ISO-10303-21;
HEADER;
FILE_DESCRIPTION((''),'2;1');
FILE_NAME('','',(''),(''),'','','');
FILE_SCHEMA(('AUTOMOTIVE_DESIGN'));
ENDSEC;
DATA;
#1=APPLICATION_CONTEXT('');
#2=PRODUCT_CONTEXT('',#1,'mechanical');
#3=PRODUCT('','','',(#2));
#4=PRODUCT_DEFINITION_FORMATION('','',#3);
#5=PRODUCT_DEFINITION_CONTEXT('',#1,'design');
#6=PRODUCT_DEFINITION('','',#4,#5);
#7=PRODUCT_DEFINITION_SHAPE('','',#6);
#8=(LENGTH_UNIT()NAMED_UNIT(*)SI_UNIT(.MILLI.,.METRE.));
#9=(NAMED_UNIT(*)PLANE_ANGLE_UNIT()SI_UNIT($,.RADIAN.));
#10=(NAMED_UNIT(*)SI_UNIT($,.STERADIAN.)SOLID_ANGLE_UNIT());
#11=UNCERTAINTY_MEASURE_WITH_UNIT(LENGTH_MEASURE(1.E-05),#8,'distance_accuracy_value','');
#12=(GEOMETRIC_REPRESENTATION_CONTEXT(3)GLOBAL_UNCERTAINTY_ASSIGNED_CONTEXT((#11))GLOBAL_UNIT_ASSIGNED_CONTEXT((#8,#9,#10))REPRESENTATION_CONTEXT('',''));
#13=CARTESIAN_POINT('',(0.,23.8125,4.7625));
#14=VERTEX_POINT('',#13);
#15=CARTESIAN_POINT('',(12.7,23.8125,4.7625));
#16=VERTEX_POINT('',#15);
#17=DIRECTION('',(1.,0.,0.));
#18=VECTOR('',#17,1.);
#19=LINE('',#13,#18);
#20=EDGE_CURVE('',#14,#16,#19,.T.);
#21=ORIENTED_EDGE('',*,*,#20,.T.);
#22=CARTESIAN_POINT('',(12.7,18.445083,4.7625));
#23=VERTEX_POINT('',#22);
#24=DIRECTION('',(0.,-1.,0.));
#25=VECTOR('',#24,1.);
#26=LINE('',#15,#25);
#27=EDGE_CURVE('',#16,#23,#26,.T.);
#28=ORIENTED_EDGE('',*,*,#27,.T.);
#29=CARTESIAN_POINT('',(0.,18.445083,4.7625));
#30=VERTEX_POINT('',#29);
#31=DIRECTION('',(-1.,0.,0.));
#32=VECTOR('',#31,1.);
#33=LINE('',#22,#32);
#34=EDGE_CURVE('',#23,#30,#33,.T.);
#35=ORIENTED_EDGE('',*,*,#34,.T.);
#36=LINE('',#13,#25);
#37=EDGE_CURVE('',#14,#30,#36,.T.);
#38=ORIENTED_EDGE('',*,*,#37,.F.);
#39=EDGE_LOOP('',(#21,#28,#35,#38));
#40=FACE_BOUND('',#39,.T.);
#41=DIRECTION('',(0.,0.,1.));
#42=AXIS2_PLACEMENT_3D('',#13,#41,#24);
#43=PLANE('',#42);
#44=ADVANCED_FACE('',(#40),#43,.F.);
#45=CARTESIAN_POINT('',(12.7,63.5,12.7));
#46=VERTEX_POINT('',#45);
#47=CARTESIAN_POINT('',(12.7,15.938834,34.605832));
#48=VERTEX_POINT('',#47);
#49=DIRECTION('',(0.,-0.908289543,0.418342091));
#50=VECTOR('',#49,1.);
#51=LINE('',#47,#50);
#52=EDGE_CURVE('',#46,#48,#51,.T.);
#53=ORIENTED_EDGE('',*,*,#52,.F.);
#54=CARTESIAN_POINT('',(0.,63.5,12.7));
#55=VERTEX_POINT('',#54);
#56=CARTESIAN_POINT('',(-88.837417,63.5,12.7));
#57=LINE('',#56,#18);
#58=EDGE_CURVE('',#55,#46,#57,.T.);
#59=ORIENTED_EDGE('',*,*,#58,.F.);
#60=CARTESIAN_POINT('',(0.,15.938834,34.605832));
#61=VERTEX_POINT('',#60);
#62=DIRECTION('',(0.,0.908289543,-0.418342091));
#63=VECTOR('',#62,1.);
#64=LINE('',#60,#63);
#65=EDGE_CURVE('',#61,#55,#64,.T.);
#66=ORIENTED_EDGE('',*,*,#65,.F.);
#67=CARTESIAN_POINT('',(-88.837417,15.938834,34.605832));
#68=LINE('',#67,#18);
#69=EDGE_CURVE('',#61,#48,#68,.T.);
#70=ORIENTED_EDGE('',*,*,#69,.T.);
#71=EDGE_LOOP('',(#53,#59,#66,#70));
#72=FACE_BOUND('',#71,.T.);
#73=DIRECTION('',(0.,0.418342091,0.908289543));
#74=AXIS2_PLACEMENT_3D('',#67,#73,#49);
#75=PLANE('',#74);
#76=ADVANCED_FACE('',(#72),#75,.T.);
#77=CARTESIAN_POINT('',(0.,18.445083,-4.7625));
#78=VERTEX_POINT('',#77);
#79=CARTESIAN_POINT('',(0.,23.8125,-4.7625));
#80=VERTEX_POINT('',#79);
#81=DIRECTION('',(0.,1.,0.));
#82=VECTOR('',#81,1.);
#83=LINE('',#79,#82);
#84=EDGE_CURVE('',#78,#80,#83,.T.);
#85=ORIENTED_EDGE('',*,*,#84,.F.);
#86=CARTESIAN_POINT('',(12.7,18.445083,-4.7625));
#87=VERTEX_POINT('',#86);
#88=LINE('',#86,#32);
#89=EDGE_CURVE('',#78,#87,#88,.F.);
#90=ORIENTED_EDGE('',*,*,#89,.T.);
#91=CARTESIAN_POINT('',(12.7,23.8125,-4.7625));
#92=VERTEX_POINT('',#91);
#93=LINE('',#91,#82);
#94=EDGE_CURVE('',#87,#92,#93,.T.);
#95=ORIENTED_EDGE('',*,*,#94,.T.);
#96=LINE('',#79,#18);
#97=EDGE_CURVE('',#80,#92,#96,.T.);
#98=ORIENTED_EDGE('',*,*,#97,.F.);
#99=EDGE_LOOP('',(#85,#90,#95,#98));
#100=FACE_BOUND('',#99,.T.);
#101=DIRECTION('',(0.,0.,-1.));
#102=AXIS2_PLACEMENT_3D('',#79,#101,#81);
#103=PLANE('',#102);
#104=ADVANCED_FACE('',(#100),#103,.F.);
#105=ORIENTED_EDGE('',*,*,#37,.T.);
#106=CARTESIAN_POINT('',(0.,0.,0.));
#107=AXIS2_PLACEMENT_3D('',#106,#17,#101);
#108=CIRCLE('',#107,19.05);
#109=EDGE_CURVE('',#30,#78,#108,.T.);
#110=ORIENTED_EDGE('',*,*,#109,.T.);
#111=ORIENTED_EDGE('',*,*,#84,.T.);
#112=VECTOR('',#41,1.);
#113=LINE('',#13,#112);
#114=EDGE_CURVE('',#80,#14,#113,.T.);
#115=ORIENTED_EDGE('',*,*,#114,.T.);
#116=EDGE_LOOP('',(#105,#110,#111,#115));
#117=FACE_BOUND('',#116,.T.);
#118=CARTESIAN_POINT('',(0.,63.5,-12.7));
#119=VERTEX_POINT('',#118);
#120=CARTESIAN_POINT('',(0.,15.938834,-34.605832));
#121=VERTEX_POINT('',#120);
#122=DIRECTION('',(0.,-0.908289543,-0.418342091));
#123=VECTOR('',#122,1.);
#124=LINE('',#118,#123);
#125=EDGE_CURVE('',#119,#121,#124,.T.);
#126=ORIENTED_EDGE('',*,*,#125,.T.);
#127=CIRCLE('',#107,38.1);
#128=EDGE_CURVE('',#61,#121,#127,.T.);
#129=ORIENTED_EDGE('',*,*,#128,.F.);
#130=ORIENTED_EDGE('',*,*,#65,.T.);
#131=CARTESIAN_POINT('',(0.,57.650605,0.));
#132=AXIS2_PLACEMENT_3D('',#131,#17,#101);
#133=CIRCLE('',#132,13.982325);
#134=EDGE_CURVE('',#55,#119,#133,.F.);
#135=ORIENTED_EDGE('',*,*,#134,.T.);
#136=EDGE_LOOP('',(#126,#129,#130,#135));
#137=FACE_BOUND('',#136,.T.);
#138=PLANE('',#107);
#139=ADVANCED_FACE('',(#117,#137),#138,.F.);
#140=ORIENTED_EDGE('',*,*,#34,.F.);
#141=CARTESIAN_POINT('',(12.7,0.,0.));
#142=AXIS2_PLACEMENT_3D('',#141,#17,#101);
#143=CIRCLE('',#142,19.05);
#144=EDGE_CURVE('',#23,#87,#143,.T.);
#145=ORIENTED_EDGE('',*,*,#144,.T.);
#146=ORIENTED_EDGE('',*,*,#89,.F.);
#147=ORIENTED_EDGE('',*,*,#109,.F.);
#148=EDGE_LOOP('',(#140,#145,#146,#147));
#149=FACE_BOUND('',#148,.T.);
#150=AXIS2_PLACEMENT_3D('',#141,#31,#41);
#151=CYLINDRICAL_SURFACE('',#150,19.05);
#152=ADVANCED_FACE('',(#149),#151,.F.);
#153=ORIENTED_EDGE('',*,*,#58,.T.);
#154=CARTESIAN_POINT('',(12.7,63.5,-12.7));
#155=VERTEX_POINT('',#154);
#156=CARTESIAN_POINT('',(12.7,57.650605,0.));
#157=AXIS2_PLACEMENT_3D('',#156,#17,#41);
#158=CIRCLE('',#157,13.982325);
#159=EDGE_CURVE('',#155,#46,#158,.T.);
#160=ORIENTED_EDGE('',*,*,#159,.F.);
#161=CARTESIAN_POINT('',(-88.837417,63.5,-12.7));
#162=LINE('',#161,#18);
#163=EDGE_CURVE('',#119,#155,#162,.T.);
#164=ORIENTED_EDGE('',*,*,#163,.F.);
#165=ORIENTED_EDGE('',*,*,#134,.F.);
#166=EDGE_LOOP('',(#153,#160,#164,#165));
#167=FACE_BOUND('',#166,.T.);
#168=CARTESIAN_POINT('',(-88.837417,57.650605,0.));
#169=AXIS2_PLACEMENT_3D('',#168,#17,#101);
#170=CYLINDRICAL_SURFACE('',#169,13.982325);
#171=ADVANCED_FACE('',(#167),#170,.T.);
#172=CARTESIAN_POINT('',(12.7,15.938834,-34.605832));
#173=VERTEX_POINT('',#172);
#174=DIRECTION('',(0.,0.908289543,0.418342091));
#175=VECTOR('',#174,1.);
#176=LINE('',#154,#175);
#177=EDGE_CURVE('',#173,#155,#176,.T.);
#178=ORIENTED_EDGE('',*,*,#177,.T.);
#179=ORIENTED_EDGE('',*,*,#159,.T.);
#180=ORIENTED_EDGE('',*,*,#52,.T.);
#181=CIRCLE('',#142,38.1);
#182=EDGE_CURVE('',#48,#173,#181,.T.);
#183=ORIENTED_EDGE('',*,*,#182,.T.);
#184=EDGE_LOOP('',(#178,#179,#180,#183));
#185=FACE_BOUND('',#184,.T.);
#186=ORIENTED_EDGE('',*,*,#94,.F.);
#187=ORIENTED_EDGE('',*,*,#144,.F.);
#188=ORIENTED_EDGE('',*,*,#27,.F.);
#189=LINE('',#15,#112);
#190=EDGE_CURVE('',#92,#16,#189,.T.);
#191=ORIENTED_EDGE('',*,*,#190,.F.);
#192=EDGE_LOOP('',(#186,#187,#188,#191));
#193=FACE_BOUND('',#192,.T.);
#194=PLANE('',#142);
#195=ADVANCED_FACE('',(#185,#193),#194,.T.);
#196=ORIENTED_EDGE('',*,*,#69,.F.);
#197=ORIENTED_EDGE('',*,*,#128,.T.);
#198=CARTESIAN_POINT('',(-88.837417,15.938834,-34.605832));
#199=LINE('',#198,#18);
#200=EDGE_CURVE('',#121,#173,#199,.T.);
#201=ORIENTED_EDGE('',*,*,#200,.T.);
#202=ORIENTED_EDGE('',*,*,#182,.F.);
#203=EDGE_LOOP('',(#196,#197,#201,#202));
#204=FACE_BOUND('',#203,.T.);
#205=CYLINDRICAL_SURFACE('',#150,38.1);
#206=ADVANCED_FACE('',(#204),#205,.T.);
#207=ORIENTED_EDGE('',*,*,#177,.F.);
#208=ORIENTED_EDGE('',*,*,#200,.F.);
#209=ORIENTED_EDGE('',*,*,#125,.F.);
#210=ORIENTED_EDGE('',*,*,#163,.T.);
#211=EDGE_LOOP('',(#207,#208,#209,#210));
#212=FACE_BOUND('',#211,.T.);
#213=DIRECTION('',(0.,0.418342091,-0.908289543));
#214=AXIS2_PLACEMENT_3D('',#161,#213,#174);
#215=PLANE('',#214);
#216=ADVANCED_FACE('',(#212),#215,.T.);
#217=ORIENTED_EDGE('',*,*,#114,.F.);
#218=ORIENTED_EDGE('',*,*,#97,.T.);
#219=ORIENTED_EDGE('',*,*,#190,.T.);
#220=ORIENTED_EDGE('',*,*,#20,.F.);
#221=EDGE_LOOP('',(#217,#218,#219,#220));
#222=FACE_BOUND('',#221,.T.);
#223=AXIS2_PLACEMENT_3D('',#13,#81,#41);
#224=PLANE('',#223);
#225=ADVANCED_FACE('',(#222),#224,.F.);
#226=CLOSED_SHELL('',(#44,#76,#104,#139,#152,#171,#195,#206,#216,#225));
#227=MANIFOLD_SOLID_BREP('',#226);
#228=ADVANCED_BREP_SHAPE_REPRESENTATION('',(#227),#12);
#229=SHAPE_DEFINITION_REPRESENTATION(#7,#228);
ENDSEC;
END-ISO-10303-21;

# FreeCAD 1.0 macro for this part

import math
import FreeCAD as App
import Part
import Sketcher
Q = App.Units.Quantity

doc = App.newDocument("Part")
params = doc.addObject("Spreadsheet::Sheet", "Params")
for row, (alias, value) in enumerate([
    ("sketch1_diameter", "3 in"),
    ("sketch1_diameter2", "1.5 in"),
    ("pad1_length", "0.5 in"),
    ("sketch2_width", "0.375 in"),
    ("sketch3_radius", "1.5 in"),
    ("pad2_length", "0.5 in"),
], start=1):
    params.set(f"A{row}", alias)
    params.set(f"B{row}", "=" + value)
    params.setAlias(f"B{row}", alias)

body = doc.addObject("PartDesign::Body", "Body")

# Sketch on YZ plane
sketch1 = body.newObject("Sketcher::SketchObject", "Sketch")
sketch1.AttachmentSupport = (doc.getObject("YZ_Plane"), [""])
sketch1.MapMode = "FlatFace"
sketch1.addGeometry(Part.Circle(App.Vector(0, 0, 0), App.Vector(0, 0, 1), 38), False)
sketch1.addGeometry(Part.Circle(App.Vector(0, 0, 0), App.Vector(0, 0, 1), 19), False)
sketch1.addConstraint(Sketcher.Constraint("Coincident", 0, 3, -1, 1))
sketch1.addConstraint(Sketcher.Constraint("Coincident", 1, 3, -1, 1))
sketch1.addConstraint(Sketcher.Constraint("Diameter", 0, Q("3 in")))
sketch1.addConstraint(Sketcher.Constraint("Diameter", 1, Q("1.5 in")))
sketch1.setExpression("Constraints[2]", "Params.sketch1_diameter")
sketch1.setExpression("Constraints[3]", "Params.sketch1_diameter2")
pad1 = body.newObject("PartDesign::Pad", "Pad")
pad1.Profile = sketch1
pad1.setExpression("Length", "Params.pad1_length")

# Sketch on YZ plane
sketch2 = body.newObject("Sketcher::SketchObject", "Sketch001")
sketch2.AttachmentSupport = (doc.getObject("YZ_Plane"), [""])
sketch2.MapMode = "FlatFace"
sketch2.AttachmentOffset = App.Placement(App.Vector(0, 0, 0.5 * 25.4), App.Rotation())
sketch2.addGeometry(Part.LineSegment(App.Vector(24, 5, 0), App.Vector(14, 5, 0)), False)
sketch2.addGeometry(Part.LineSegment(App.Vector(14, 5, 0), App.Vector(14, -5, 0)), False)
sketch2.addGeometry(Part.LineSegment(App.Vector(14, -5, 0), App.Vector(24, -5, 0)), False)
sketch2.addGeometry(Part.LineSegment(App.Vector(24, -5, 0), App.Vector(24, 5, 0)), False)
sketch2.addConstraint(Sketcher.Constraint("Coincident", 0, 2, 1, 1))
sketch2.addConstraint(Sketcher.Constraint("Coincident", 1, 2, 2, 1))
sketch2.addConstraint(Sketcher.Constraint("Coincident", 2, 2, 3, 1))
sketch2.addConstraint(Sketcher.Constraint("Coincident", 3, 2, 0, 1))
sketch2.addConstraint(Sketcher.Constraint("Horizontal", 0))
sketch2.addConstraint(Sketcher.Constraint("Vertical", 1))
sketch2.addConstraint(Sketcher.Constraint("Horizontal", 2))
sketch2.addConstraint(Sketcher.Constraint("Vertical", 3))
sketch2.addConstraint(Sketcher.Constraint("Equal", 2, 1))
sketch2.addConstraint(Sketcher.Constraint("DistanceX", 0, 2, 0, 1, Q("0.375 in")))
sketch2.addConstraint(Sketcher.Constraint("DistanceX", -1, 1, 0, 2, Q("0.5625 in")))
sketch2.addConstraint(Sketcher.Constraint("DistanceY", -1, 1, 0, 2, Q("0.1875 in")))
sketch2.setExpression("Constraints[9]", "Params.sketch2_width")
pocket1 = body.newObject("PartDesign::Pocket", "Pocket")
pocket1.Profile = sketch2
pocket1.Type = "ThroughAll"

# Sketch on YZ plane
sketch3 = body.newObject("Sketcher::SketchObject", "Sketch002")
sketch3.AttachmentSupport = (doc.getObject("YZ_Plane"), [""])
sketch3.MapMode = "FlatFace"
sketch3.AttachmentOffset = App.Placement(App.Vector(0, 0, 0.5 * 25.4), App.Rotation())
sketch3.addGeometry(Part.LineSegment(App.Vector(64, 13, 0), App.Vector(16, 35, 0)), False)
sketch3.addGeometry(Part.ArcOfCircle(Part.Circle(App.Vector(0, 0, 0), App.Vector(0, 0, 1), 38), math.radians(-65), math.radians(65)), False)
sketch3.addGeometry(Part.LineSegment(App.Vector(16, -35, 0), App.Vector(64, -13, 0)), False)
sketch3.addGeometry(Part.ArcOfCircle(Part.Circle(App.Vector(58, 0, 0), App.Vector(0, 0, 1), 14), math.radians(-65), math.radians(65)), False)
sketch3.addConstraint(Sketcher.Constraint("Tangent", 0, 2, 1, 2))
sketch3.addConstraint(Sketcher.Constraint("Tangent", 1, 1, 2, 1))
sketch3.addConstraint(Sketcher.Constraint("Tangent", 2, 2, 3, 1))
sketch3.addConstraint(Sketcher.Constraint("Tangent", 3, 2, 0, 1))
sketch3.addConstraint(Sketcher.Constraint("Coincident", 1, 3, -1, 1))
sketch3.addConstraint(Sketcher.Constraint("PointOnObject", 3, 3, -1))
sketch3.addConstraint(Sketcher.Constraint("Radius", 1, Q("1.5 in")))
sketch3.addConstraint(Sketcher.Constraint("DistanceY", 2, 2, 3, 2, Q("1 in")))
sketch3.addConstraint(Sketcher.Constraint("DistanceX", -1, 1, 2, 2, Q("2.5 in")))
sketch3.setExpression("Constraints[6]", "Params.sketch3_radius")
pad2 = body.newObject("PartDesign::Pad", "Pad001")
pad2.Profile = sketch3
pad2.setExpression("Length", "Params.pad2_length")
pad2.Reversed = True

doc.recompute()
